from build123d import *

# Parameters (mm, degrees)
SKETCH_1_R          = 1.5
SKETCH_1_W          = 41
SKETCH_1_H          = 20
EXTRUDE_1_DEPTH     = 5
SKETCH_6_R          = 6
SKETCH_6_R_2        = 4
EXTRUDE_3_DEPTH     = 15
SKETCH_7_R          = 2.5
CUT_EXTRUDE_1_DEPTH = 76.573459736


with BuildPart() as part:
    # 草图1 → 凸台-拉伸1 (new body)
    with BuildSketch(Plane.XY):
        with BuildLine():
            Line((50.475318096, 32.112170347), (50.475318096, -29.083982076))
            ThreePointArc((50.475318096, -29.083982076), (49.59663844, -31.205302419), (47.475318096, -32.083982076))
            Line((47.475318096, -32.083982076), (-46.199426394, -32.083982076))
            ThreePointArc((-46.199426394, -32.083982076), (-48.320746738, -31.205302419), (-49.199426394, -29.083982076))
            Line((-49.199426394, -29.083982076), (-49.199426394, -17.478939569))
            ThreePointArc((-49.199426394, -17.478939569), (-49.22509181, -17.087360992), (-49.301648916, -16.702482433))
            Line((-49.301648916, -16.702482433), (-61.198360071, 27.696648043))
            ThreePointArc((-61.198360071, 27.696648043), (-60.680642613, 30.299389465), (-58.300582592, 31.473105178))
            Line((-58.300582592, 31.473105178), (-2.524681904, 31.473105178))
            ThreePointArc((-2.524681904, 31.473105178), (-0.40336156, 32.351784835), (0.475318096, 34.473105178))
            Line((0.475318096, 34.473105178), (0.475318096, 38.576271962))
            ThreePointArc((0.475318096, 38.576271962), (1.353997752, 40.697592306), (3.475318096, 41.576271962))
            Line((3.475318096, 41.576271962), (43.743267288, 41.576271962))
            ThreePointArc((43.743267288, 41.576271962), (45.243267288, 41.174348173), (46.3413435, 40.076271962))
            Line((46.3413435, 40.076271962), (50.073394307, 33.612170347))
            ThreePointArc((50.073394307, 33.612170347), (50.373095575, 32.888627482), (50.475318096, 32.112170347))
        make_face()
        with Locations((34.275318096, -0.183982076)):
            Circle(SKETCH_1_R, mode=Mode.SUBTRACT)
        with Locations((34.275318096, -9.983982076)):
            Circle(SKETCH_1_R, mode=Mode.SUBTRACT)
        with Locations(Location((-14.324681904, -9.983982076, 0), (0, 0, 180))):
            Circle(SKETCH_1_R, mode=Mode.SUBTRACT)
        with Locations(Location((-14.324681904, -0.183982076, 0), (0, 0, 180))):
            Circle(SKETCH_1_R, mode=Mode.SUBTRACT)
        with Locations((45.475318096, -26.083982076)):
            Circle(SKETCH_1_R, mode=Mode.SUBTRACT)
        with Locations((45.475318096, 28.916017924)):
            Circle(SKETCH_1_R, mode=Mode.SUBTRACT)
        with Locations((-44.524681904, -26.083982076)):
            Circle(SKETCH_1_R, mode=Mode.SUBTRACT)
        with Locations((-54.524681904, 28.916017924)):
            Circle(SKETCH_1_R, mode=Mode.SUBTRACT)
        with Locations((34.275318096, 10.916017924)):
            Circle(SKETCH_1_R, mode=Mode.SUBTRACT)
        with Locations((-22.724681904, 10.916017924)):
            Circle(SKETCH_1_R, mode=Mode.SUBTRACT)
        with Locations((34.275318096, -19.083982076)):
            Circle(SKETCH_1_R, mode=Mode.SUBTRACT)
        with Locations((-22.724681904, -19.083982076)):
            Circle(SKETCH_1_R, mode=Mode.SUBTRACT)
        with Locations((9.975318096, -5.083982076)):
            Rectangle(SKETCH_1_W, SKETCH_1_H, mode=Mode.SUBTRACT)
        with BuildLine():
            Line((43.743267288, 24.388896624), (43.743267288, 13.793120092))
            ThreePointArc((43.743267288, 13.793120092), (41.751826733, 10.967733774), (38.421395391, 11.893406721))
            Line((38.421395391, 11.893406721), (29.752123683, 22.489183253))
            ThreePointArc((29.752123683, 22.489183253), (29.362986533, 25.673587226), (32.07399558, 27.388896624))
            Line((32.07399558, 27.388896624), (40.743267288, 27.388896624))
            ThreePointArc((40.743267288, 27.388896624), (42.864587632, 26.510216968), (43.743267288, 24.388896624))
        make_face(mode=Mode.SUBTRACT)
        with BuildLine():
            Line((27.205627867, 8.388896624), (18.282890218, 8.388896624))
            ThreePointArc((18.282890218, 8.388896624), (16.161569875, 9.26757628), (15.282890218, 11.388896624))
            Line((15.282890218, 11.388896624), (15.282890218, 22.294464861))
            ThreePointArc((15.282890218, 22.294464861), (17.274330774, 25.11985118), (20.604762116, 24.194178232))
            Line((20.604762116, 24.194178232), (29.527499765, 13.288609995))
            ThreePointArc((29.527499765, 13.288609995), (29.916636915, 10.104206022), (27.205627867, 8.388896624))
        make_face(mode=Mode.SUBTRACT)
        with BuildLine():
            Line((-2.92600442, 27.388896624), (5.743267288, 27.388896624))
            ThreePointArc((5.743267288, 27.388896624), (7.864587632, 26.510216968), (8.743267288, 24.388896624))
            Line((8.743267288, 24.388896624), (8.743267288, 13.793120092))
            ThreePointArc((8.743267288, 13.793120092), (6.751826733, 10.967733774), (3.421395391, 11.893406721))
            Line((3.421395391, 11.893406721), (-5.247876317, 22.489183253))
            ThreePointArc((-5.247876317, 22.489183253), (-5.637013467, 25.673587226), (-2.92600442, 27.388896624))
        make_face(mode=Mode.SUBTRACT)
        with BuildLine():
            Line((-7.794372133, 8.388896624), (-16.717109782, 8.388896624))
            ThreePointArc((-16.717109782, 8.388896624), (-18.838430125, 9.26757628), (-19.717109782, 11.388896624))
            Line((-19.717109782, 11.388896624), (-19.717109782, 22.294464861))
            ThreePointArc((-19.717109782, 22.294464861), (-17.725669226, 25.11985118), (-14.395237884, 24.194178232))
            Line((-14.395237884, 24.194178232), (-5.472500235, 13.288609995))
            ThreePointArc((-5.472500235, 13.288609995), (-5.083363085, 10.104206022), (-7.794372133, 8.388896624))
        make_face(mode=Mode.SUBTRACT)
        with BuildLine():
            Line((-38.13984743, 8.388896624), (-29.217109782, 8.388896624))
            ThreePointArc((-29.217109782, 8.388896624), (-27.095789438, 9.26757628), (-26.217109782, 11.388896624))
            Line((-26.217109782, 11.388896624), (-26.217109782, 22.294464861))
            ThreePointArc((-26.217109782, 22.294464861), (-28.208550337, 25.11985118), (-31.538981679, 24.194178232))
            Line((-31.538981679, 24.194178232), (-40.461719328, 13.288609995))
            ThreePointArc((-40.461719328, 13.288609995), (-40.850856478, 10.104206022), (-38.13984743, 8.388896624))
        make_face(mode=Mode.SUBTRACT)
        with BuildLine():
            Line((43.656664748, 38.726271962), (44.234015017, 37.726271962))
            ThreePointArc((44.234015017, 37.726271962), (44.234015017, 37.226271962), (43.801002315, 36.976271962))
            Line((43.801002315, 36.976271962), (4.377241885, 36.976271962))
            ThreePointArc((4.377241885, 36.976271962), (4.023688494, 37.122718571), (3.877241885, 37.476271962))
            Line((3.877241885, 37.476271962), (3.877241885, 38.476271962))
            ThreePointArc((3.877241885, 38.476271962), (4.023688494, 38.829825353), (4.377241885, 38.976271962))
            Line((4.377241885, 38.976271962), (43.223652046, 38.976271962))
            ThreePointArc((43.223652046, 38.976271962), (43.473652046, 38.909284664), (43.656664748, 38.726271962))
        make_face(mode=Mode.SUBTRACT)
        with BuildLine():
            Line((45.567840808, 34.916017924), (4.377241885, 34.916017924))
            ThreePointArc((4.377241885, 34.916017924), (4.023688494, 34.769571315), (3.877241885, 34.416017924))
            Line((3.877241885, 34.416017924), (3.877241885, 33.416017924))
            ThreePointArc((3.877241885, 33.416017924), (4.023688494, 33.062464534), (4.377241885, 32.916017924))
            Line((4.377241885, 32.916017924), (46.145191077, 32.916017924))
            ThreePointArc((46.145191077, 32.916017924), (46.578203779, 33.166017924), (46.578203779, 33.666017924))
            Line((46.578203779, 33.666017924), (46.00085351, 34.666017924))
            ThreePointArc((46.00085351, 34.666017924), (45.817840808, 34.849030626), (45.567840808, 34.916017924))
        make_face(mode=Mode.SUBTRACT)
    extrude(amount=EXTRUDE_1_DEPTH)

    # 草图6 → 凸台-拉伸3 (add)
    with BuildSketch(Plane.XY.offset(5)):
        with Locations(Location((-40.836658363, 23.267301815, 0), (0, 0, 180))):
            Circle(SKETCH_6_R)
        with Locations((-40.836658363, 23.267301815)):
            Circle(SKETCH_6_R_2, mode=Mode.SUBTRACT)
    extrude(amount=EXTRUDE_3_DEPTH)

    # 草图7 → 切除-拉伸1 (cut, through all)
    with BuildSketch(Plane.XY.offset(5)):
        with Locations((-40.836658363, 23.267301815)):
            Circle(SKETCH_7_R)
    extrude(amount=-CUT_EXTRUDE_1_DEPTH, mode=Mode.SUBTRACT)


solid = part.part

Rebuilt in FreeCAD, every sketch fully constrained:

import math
import FreeCAD as App
import Part
import Sketcher

V = App.Vector
Q = App.Units.Quantity


def add_polygon(sketch, points):
    """Adds a closed chain of lines whose ends are joined by coincident constraints."""
    first, n = sketch.GeometryCount, len(points)
    for a, b in zip(points, points[1:] + points[:1]):
        sketch.addGeometry(Part.LineSegment(App.Vector(*a, 0), App.Vector(*b, 0)), False)
    for i in range(n):
        sketch.addConstraint(Sketcher.Constraint("Coincident", first + i, 2, first + (i + 1) % n, 1))

doc = App.newDocument("Part")
body = doc.addObject("PartDesign::Body", "Body")

# Sketch on XY plane
sketch1 = body.newObject("Sketcher::SketchObject", "Sketch")
sketch1.AttachmentSupport = (doc.getObject("XY_Plane"), [""])
sketch1.MapMode = "FlatFace"
sketch1.addGeometry(Part.LineSegment(V(50.48, -29.08, 0), V(50.48, 32.11, 0)), False)  # 0
sketch1.addGeometry(Part.ArcOfCircle(Part.Circle(V(47.48, 32.11, 0), V(0, 0, 1), 3), math.radians(0), math.radians(30)), False)  # 1
sketch1.addGeometry(Part.LineSegment(V(50.07, 33.61, 0), V(46.34, 40.08, 0)), False)  # 2
sketch1.addGeometry(Part.ArcOfCircle(Part.Circle(V(43.74, 38.58, 0), V(0, 0, 1), 3), math.radians(30), math.radians(90)), False)  # 3
sketch1.addGeometry(Part.LineSegment(V(43.74, 41.58, 0), V(3.48, 41.58, 0)), False)  # 4
sketch1.addGeometry(Part.ArcOfCircle(Part.Circle(V(3.48, 38.58, 0), V(0, 0, 1), 3), math.radians(90), math.radians(180)), False)  # 5
sketch1.addGeometry(Part.LineSegment(V(0.48, 38.58, 0), V(0.48, 34.47, 0)), False)  # 6
sketch1.addGeometry(Part.ArcOfCircle(Part.Circle(V(-2.52, 34.47, 0), V(0, 0, 1), 3), math.radians(-90), math.radians(0)), False)  # 7
sketch1.addGeometry(Part.LineSegment(V(-2.52, 31.47, 0), V(-58.3, 31.47, 0)), False)  # 8
sketch1.addGeometry(Part.ArcOfCircle(Part.Circle(V(-58.3, 28.47, 0), V(0, 0, 1), 3), math.radians(90), math.radians(195)), False)  # 9
sketch1.addGeometry(Part.LineSegment(V(-61.2, 27.7, 0), V(-49.3, -16.7, 0)), False)  # 10
sketch1.addGeometry(Part.ArcOfCircle(Part.Circle(V(-52.2, -17.48, 0), V(0, 0, 1), 3), math.radians(0), math.radians(15)), False)  # 11
sketch1.addGeometry(Part.LineSegment(V(-49.2, -17.48, 0), V(-49.2, -29.08, 0)), False)  # 12
sketch1.addGeometry(Part.ArcOfCircle(Part.Circle(V(-46.2, -29.08, 0), V(0, 0, 1), 3), math.radians(180), math.radians(270)), False)  # 13
sketch1.addGeometry(Part.LineSegment(V(-46.2, -32.08, 0), V(47.48, -32.08, 0)), False)  # 14
sketch1.addGeometry(Part.ArcOfCircle(Part.Circle(V(47.48, -29.08, 0), V(0, 0, 1), 3), math.radians(-90), math.radians(0)), False)  # 15
sketch1.addGeometry(Part.Circle(V(45.48, -26.08, 0), V(0, 0, 1), 1.5), False)  # 16
sketch1.addGeometry(Part.Circle(V(34.28, -19.08, 0), V(0, 0, 1), 1.5), False)  # 17
sketch1.addGeometry(Part.Circle(V(34.28, -9.98, 0), V(0, 0, 1), 1.5), False)  # 18
sketch1.addGeometry(Part.Circle(V(34.28, -0.18, 0), V(0, 0, 1), 1.5), False)  # 19
add_polygon(sketch1, [(-10.52, -15.08), (-10.52, 4.92), (30.48, 4.92), (30.48, -15.08)])  # lines 20-23
sketch1.addGeometry(Part.Circle(V(-22.72, -19.08, 0), V(0, 0, 1), 1.5), False)  # 24
sketch1.addGeometry(Part.Circle(V(-44.52, -26.08, 0), V(0, 0, 1), 1.5), False)  # 25
sketch1.addGeometry(Part.Circle(V(-14.32, -9.98, 0), V(0, 0, 1), 1.5), False)  # 26
sketch1.addGeometry(Part.Circle(V(-14.32, -0.18, 0), V(0, 0, 1), 1.5), False)  # 27
sketch1.addGeometry(Part.Circle(V(34.28, 10.92, 0), V(0, 0, 1), 1.5), False)  # 28
sketch1.addGeometry(Part.LineSegment(V(43.74, 24.39, 0), V(43.74, 13.79, 0)), False)  # 29
sketch1.addGeometry(Part.ArcOfCircle(Part.Circle(V(40.74, 13.79, 0), V(0, 0, 1), 3), math.radians(-141), math.radians(0)), False)  # 30
sketch1.addGeometry(Part.LineSegment(V(38.42, 11.89, 0), V(29.75, 22.49, 0)), False)  # 31
sketch1.addGeometry(Part.ArcOfCircle(Part.Circle(V(32.07, 24.39, 0), V(0, 0, 1), 3), math.radians(90), math.radians(219)), False)  # 32
sketch1.addGeometry(Part.LineSegment(V(32.07, 27.39, 0), V(40.74, 27.39, 0)), False)  # 33
sketch1.addGeometry(Part.ArcOfCircle(Part.Circle(V(40.74, 24.39, 0), V(0, 0, 1), 3), math.radians(0), math.radians(90)), False)  # 34
sketch1.addGeometry(Part.LineSegment(V(27.21, 8.39, 0), V(18.28, 8.39, 0)), False)  # 35
sketch1.addGeometry(Part.ArcOfCircle(Part.Circle(V(18.28, 11.39, 0), V(0, 0, 1), 3), math.radians(180), math.radians(270)), False)  # 36
sketch1.addGeometry(Part.LineSegment(V(15.28, 11.39, 0), V(15.28, 22.29, 0)), False)  # 37
sketch1.addGeometry(Part.ArcOfCircle(Part.Circle(V(18.28, 22.29, 0), V(0, 0, 1), 3), math.radians(39), math.radians(180)), False)  # 38
sketch1.addGeometry(Part.LineSegment(V(20.6, 24.19, 0), V(29.53, 13.29, 0)), False)  # 39
sketch1.addGeometry(Part.ArcOfCircle(Part.Circle(V(27.21, 11.39, 0), V(0, 0, 1), 3), math.radians(-90), math.radians(39)), False)  # 40
sketch1.addGeometry(Part.LineSegment(V(-2.93, 27.39, 0), V(5.74, 27.39, 0)), False)  # 41
sketch1.addGeometry(Part.ArcOfCircle(Part.Circle(V(5.74, 24.39, 0), V(0, 0, 1), 3), math.radians(0), math.radians(90)), False)  # 42
sketch1.addGeometry(Part.LineSegment(V(8.74, 24.39, 0), V(8.74, 13.79, 0)), False)  # 43
sketch1.addGeometry(Part.ArcOfCircle(Part.Circle(V(5.74, 13.79, 0), V(0, 0, 1), 3), math.radians(-141), math.radians(0)), False)  # 44
sketch1.addGeometry(Part.LineSegment(V(3.42, 11.89, 0), V(-5.25, 22.49, 0)), False)  # 45
sketch1.addGeometry(Part.ArcOfCircle(Part.Circle(V(-2.93, 24.39, 0), V(0, 0, 1), 3), math.radians(90), math.radians(219)), False)  # 46
sketch1.addGeometry(Part.Circle(V(45.48, 28.92, 0), V(0, 0, 1), 1.5), False)  # 47
sketch1.addGeometry(Part.ArcOfCircle(Part.Circle(V(45.57, 34.42, 0), V(0, 0, 1), 0.5), math.radians(30), math.radians(90)), False)  # 48
sketch1.addGeometry(Part.LineSegment(V(46, 34.67, 0), V(46.58, 33.67, 0)), False)  # 49
sketch1.addGeometry(Part.ArcOfCircle(Part.Circle(V(46.15, 33.42, 0), V(0, 0, 1), 0.5), math.radians(-90), math.radians(30)), False)  # 50
sketch1.addGeometry(Part.LineSegment(V(46.15, 32.92, 0), V(4.38, 32.92, 0)), False)  # 51
sketch1.addGeometry(Part.ArcOfCircle(Part.Circle(V(4.38, 33.42, 0), V(0, 0, 1), 0.5), math.radians(180), math.radians(270)), False)  # 52
sketch1.addGeometry(Part.LineSegment(V(3.88, 33.42, 0), V(3.88, 34.42, 0)), False)  # 53
sketch1.addGeometry(Part.ArcOfCircle(Part.Circle(V(4.38, 34.42, 0), V(0, 0, 1), 0.5), math.radians(90), math.radians(180)), False)  # 54
sketch1.addGeometry(Part.LineSegment(V(4.38, 34.92, 0), V(45.57, 34.92, 0)), False)  # 55
sketch1.addGeometry(Part.LineSegment(V(43.66, 38.73, 0), V(44.23, 37.73, 0)), False)  # 56
sketch1.addGeometry(Part.ArcOfCircle(Part.Circle(V(43.8, 37.48, 0), V(0, 0, 1), 0.5), math.radians(-90), math.radians(30)), False)  # 57
sketch1.addGeometry(Part.LineSegment(V(43.8, 36.98, 0), V(4.38, 36.98, 0)), False)  # 58
sketch1.addGeometry(Part.ArcOfCircle(Part.Circle(V(4.38, 37.48, 0), V(0, 0, 1), 0.5), math.radians(180), math.radians(270)), False)  # 59
sketch1.addGeometry(Part.LineSegment(V(3.88, 37.48, 0), V(3.88, 38.48, 0)), False)  # 60
sketch1.addGeometry(Part.ArcOfCircle(Part.Circle(V(4.38, 38.48, 0), V(0, 0, 1), 0.5), math.radians(90), math.radians(180)), False)  # 61
sketch1.addGeometry(Part.LineSegment(V(4.38, 38.98, 0), V(43.22, 38.98, 0)), False)  # 62
sketch1.addGeometry(Part.ArcOfCircle(Part.Circle(V(43.22, 38.48, 0), V(0, 0, 1), 0.5), math.radians(30), math.radians(90)), False)  # 63
sketch1.addGeometry(Part.Circle(V(-22.72, 10.92, 0), V(0, 0, 1), 1.5), False)  # 64
sketch1.addGeometry(Part.LineSegment(V(-7.79, 8.39, 0), V(-16.72, 8.39, 0)), False)  # 65
sketch1.addGeometry(Part.ArcOfCircle(Part.Circle(V(-16.72, 11.39, 0), V(0, 0, 1), 3), math.radians(180), math.radians(270)), False)  # 66
sketch1.addGeometry(Part.LineSegment(V(-19.72, 11.39, 0), V(-19.72, 22.29, 0)), False)  # 67
sketch1.addGeometry(Part.ArcOfCircle(Part.Circle(V(-16.72, 22.29, 0), V(0, 0, 1), 3), math.radians(39), math.radians(180)), False)  # 68
sketch1.addGeometry(Part.LineSegment(V(-14.4, 24.19, 0), V(-5.47, 13.29, 0)), False)  # 69
sketch1.addGeometry(Part.ArcOfCircle(Part.Circle(V(-7.79, 11.39, 0), V(0, 0, 1), 3), math.radians(-90), math.radians(39)), False)  # 70
sketch1.addGeometry(Part.ArcOfCircle(Part.Circle(V(-38.14, 11.39, 0), V(0, 0, 1), 3), math.radians(141), math.radians(270)), False)  # 71
sketch1.addGeometry(Part.LineSegment(V(-40.46, 13.29, 0), V(-31.54, 24.19, 0)), False)  # 72
sketch1.addGeometry(Part.ArcOfCircle(Part.Circle(V(-29.22, 22.29, 0), V(0, 0, 1), 3), math.radians(0), math.radians(141)), False)  # 73
sketch1.addGeometry(Part.LineSegment(V(-26.22, 22.29, 0), V(-26.22, 11.39, 0)), False)  # 74
sketch1.addGeometry(Part.ArcOfCircle(Part.Circle(V(-29.22, 11.39, 0), V(0, 0, 1), 3), math.radians(-90), math.radians(0)), False)  # 75
sketch1.addGeometry(Part.LineSegment(V(-29.22, 8.39, 0), V(-38.14, 8.39, 0)), False)  # 76
sketch1.addGeometry(Part.Circle(V(-54.52, 28.92, 0), V(0, 0, 1), 1.5), False)  # 77
sketch1.addConstraint([
    Sketcher.Constraint("Tangent", 0, 2, 1, 1),
    Sketcher.Constraint("Tangent", 1, 2, 2, 1),
    Sketcher.Constraint("Tangent", 2, 2, 3, 1),
    Sketcher.Constraint("Tangent", 3, 2, 4, 1),
    Sketcher.Constraint("Tangent", 4, 2, 5, 1),
    Sketcher.Constraint("Tangent", 5, 2, 6, 1),
    Sketcher.Constraint("Tangent", 6, 2, 7, 2),
    Sketcher.Constraint("Tangent", 7, 1, 8, 1),
    Sketcher.Constraint("Tangent", 8, 2, 9, 1),
    Sketcher.Constraint("Tangent", 9, 2, 10, 1),
    Sketcher.Constraint("Tangent", 10, 2, 11, 2),
    Sketcher.Constraint("Tangent", 11, 1, 12, 1),
    Sketcher.Constraint("Tangent", 12, 2, 13, 1),
    Sketcher.Constraint("Tangent", 13, 2, 14, 1),
    Sketcher.Constraint("Tangent", 14, 2, 15, 1),
    Sketcher.Constraint("Tangent", 15, 2, 0, 1),
    Sketcher.Constraint("Tangent", 29, 2, 30, 2),
    Sketcher.Constraint("Tangent", 30, 1, 31, 1),
    Sketcher.Constraint("Tangent", 31, 2, 32, 2),
    Sketcher.Constraint("Tangent", 32, 1, 33, 1),
    Sketcher.Constraint("Tangent", 33, 2, 34, 2),
    Sketcher.Constraint("Tangent", 34, 1, 29, 1),
    Sketcher.Constraint("Tangent", 35, 2, 36, 2),
    Sketcher.Constraint("Tangent", 36, 1, 37, 1),
    Sketcher.Constraint("Tangent", 37, 2, 38, 2),
    Sketcher.Constraint("Tangent", 38, 1, 39, 1),
    Sketcher.Constraint("Tangent", 39, 2, 40, 2),
    Sketcher.Constraint("Tangent", 40, 1, 35, 1),
    Sketcher.Constraint("Tangent", 41, 2, 42, 2),
    Sketcher.Constraint("Tangent", 42, 1, 43, 1),
    Sketcher.Constraint("Tangent", 43, 2, 44, 2),
    Sketcher.Constraint("Tangent", 44, 1, 45, 1),
    Sketcher.Constraint("Tangent", 45, 2, 46, 2),
    Sketcher.Constraint("Tangent", 46, 1, 41, 1),
    Sketcher.Constraint("Tangent", 48, 1, 49, 1),
    Sketcher.Constraint("Tangent", 49, 2, 50, 2),
    Sketcher.Constraint("Tangent", 50, 1, 51, 1),
    Sketcher.Constraint("Tangent", 51, 2, 52, 2),
    Sketcher.Constraint("Tangent", 52, 1, 53, 1),
    Sketcher.Constraint("Tangent", 53, 2, 54, 2),
    Sketcher.Constraint("Tangent", 54, 1, 55, 1),
    Sketcher.Constraint("Tangent", 55, 2, 48, 2),
    Sketcher.Constraint("Tangent", 56, 2, 57, 2),
    Sketcher.Constraint("Tangent", 57, 1, 58, 1),
    Sketcher.Constraint("Tangent", 58, 2, 59, 2),
    Sketcher.Constraint("Tangent", 59, 1, 60, 1),
    Sketcher.Constraint("Tangent", 60, 2, 61, 2),
    Sketcher.Constraint("Tangent", 61, 1, 62, 1),
    Sketcher.Constraint("Tangent", 62, 2, 63, 2),
    Sketcher.Constraint("Tangent", 63, 1, 56, 1),
    Sketcher.Constraint("Tangent", 65, 2, 66, 2),
    Sketcher.Constraint("Tangent", 66, 1, 67, 1),
    Sketcher.Constraint("Tangent", 67, 2, 68, 2),
    Sketcher.Constraint("Tangent", 68, 1, 69, 1),
    Sketcher.Constraint("Tangent", 69, 2, 70, 2),
    Sketcher.Constraint("Tangent", 70, 1, 65, 1),
    Sketcher.Constraint("Tangent", 71, 1, 72, 1),
    Sketcher.Constraint("Tangent", 72, 2, 73, 2),
    Sketcher.Constraint("Tangent", 73, 1, 74, 1),
    Sketcher.Constraint("Tangent", 74, 2, 75, 2),
    Sketcher.Constraint("Tangent", 75, 1, 76, 1),
    Sketcher.Constraint("Tangent", 76, 2, 71, 2),
    Sketcher.Constraint("Vertical", 0),
    Sketcher.Constraint("Horizontal", 4),
    Sketcher.Constraint("Vertical", 6),
    Sketcher.Constraint("Horizontal", 8),
    Sketcher.Constraint("Vertical", 12),
    Sketcher.Constraint("Horizontal", 14),
    Sketcher.Constraint("Vertical", 20),
    Sketcher.Constraint("Horizontal", 21),
    Sketcher.Constraint("Vertical", 22),
    Sketcher.Constraint("Horizontal", 23),
    Sketcher.Constraint("Vertical", 29),
    Sketcher.Constraint("Horizontal", 33),
    Sketcher.Constraint("Horizontal", 35),
    Sketcher.Constraint("Vertical", 37),
    Sketcher.Constraint("Horizontal", 41),
    Sketcher.Constraint("Vertical", 43),
    Sketcher.Constraint("Horizontal", 51),
    Sketcher.Constraint("Vertical", 53),
    Sketcher.Constraint("Horizontal", 55),
    Sketcher.Constraint("Horizontal", 58),
    Sketcher.Constraint("Vertical", 60),
    Sketcher.Constraint("Horizontal", 62),
    Sketcher.Constraint("Horizontal", 65),
    Sketcher.Constraint("Vertical", 67),
    Sketcher.Constraint("Vertical", 74),
    Sketcher.Constraint("Horizontal", 76),
    Sketcher.Constraint("Equal", 1, 3),
    Sketcher.Constraint("Equal", 3, 5),
    Sketcher.Constraint("Equal", 5, 7),
    Sketcher.Constraint("Equal", 7, 9),
    Sketcher.Constraint("Equal", 9, 11),
    Sketcher.Constraint("Equal", 11, 13),
    Sketcher.Constraint("Equal", 13, 15),
    Sketcher.Constraint("Equal", 16, 17),
    Sketcher.Constraint("Equal", 17, 18),
    Sketcher.Constraint("Equal", 18, 19),
    Sketcher.Constraint("Equal", 19, 24),
    Sketcher.Constraint("Equal", 24, 25),
    Sketcher.Constraint("Equal", 25, 26),
    Sketcher.Constraint("Equal", 26, 27),
    Sketcher.Constraint("Equal", 27, 28),
    Sketcher.Constraint("Equal", 15, 30),
    Sketcher.Constraint("Equal", 30, 32),
    Sketcher.Constraint("Equal", 32, 34),
    Sketcher.Constraint("Equal", 34, 36),
    Sketcher.Constraint("Equal", 36, 38),
    Sketcher.Constraint("Equal", 38, 40),
    Sketcher.Constraint("Equal", 40, 42),
    Sketcher.Constraint("Equal", 42, 44),
    Sketcher.Constraint("Equal", 44, 46),
    Sketcher.Constraint("Equal", 28, 47),
    Sketcher.Constraint("Equal", 48, 50),
    Sketcher.Constraint("Equal", 50, 52),
    Sketcher.Constraint("Equal", 52, 54),
    Sketcher.Constraint("Equal", 54, 57),
    Sketcher.Constraint("Equal", 57, 59),
    Sketcher.Constraint("Equal", 59, 61),
    Sketcher.Constraint("Equal", 61, 63),
    Sketcher.Constraint("Equal", 47, 64),
    Sketcher.Constraint("Equal", 46, 66),
    Sketcher.Constraint("Equal", 66, 68),
    Sketcher.Constraint("Equal", 68, 70),
    Sketcher.Constraint("Equal", 70, 71),
    Sketcher.Constraint("Equal", 71, 73),
    Sketcher.Constraint("Equal", 73, 75),
    Sketcher.Constraint("Equal", 64, 77),
    Sketcher.Constraint("Parallel", 31, 39),
    Sketcher.Constraint("Parallel", 39, 45),
    Sketcher.Constraint("Parallel", 2, 49),
    Sketcher.Constraint("Parallel", 49, 56),
    Sketcher.Constraint("Parallel", 45, 69),
    Sketcher.Constraint("Horizontal", 17, 3, 24, 3),
    Sketcher.Constraint("Horizontal", 16, 3, 25, 3),
    Sketcher.Constraint("Horizontal", 18, 3, 26, 3),
    Sketcher.Constraint("Horizontal", 19, 3, 27, 3),
    Sketcher.Constraint("Horizontal", 34, 3, 42, 3),
    Sketcher.Constraint("Horizontal", 30, 3, 44, 3),
    Sketcher.Constraint("Horizontal", 28, 3, 64, 3),
    Sketcher.Constraint("Horizontal", 40, 3, 66, 3),
    Sketcher.Constraint("Horizontal", 38, 3, 68, 3),
    Sketcher.Constraint("Horizontal", 70, 3, 71, 3),
    Sketcher.Constraint("Horizontal", 68, 3, 73, 3),
    Sketcher.Constraint("Horizontal", 47, 3, 77, 3),
    Sketcher.Constraint("Horizontal", 69, 2, 71, 1),
    Sketcher.Constraint("Vertical", 17, 3, 18, 3),
    Sketcher.Constraint("Vertical", 18, 3, 19, 3),
    Sketcher.Constraint("Vertical", 26, 3, 27, 3),
    Sketcher.Constraint("Vertical", 19, 3, 28, 3),
    Sketcher.Constraint("Vertical", 16, 3, 47, 3),
    Sketcher.Constraint("Vertical", 54, 3, 59, 3),
    Sketcher.Constraint("Vertical", 24, 3, 64, 3),
    Sketcher.Constraint("Vertical", 3, 2, 29, 2),
    Sketcher.Constraint("Equal", 53, 60),
    Sketcher.Constraint("Diameter", 16, 3.0),
    Sketcher.Constraint("Radius", 1, 3.0),
    Sketcher.Constraint("Radius", 48, 0.5),
    Sketcher.Constraint("DistanceX", 21, 1, 21, 2, 41.0),
    Sketcher.Constraint("DistanceY", 20, 1, 20, 2, 20.0),
    Sketcher.Constraint("DistanceY", 53, 1, 53, 2, 1.0),
    Sketcher.Constraint("Angle", 2, Q("120 deg")),
    Sketcher.Constraint("Angle", 10, Q("-75 deg")),
    Sketcher.Constraint("DistanceX", 8, 2, 8, 1, 55.775901),
    Sketcher.Constraint("DistanceX", 55, 1, 55, 2, 41.190599),
    Sketcher.Constraint("Distance", 2, 7.464102),
    Sketcher.Constraint("DistanceX", 4, 2, 4, 1, 40.267949),
    Sketcher.Constraint("DistanceX", 33, 1, 33, 2, 8.669272),
    Sketcher.Constraint("DistanceX", 58, 2, 58, 1, 39.42376),
    Sketcher.Constraint("DistanceY", 37, 1, 37, 2, 10.905568),
    Sketcher.Constraint("DistanceX", -1, 1, 39, 2, 29.5275),
    Sketcher.Constraint("DistanceX", 69, 2, -1, 1, 5.4725),
    Sketcher.Constraint("Distance", 31, 13.690389),
    Sketcher.Constraint("DistanceX", 14, 1, 14, 2, 93.674744),
    Sketcher.Constraint("DistanceY", 0, 1, 0, 2, 61.196152),
    Sketcher.Constraint("DistanceY", 6, 2, 6, 1, 4.103167),
    Sketcher.Constraint("DistanceX", -1, 1, 1, 3, 47.475318),
    Sketcher.Constraint("DistanceY", -1, 1, 1, 3, 32.11217),
    Sketcher.Constraint("DistanceX", -1, 1, 16, 3, 45.475318),
    Sketcher.Constraint("DistanceX", -1, 1, 17, 3, 34.275318),
    Sketcher.Constraint("DistanceX", 24, 3, -1, 1, 22.724682),
    Sketcher.Constraint("DistanceX", 25, 3, -1, 1, 44.524682),
    Sketcher.Constraint("DistanceX", 26, 3, -1, 1, 14.324682),
    Sketcher.Constraint("DistanceY", -1, 1, 30, 3, 13.79312),
    Sketcher.Constraint("DistanceX", -1, 1, 48, 3, 45.567841),
    Sketcher.Constraint("DistanceY", -1, 1, 57, 3, 37.476272),
    Sketcher.Constraint("DistanceX", 73, 3, -1, 1, 29.21711),
    Sketcher.Constraint("DistanceX", 77, 3, -1, 1, 54.524682),
    Sketcher.Constraint("DistanceX", 20, 2, -1, 1, 10.524682),
    Sketcher.Constraint("DistanceY", -1, 1, 38, 1, 24.194178),
    Sketcher.Constraint("DistanceY", 16, 3, -1, 1, 26.083982),
    Sketcher.Constraint("DistanceY", 17, 3, -1, 1, 19.083982),
    Sketcher.Constraint("DistanceY", 18, 3, -1, 1, 9.983982),
    Sketcher.Constraint("DistanceY", 19, 3, -1, 1, 0.183982),
    Sketcher.Constraint("DistanceY", -1, 1, 28, 3, 10.916018),
    Sketcher.Constraint("DistanceX", -1, 1, 42, 3, 5.743267),
    Sketcher.Constraint("DistanceY", -1, 1, 47, 3, 28.916018),
    Sketcher.Constraint("DistanceY", -1, 1, 48, 3, 34.416018),
    Sketcher.Constraint("DistanceY", -1, 1, 20, 2, 4.916018),
])
pad1 = body.newObject("PartDesign::Pad", "Pad")
pad1.Profile = sketch1
pad1.Length = 5

# Sketch on XY plane
sketch2 = body.newObject("Sketcher::SketchObject", "Sketch001")
sketch2.AttachmentSupport = (doc.getObject("XY_Plane"), [""])
sketch2.MapMode = "FlatFace"
sketch2.AttachmentOffset = App.Placement(V(0, 0, 5), App.Rotation())
sketch2.addGeometry([
    Part.Circle(V(-40.8, 23.3, 0), V(0, 0, 1), 6),
    Part.Circle(V(-40.8, 23.3, 0), V(0, 0, 1), 4),
], False)
sketch2.addConstraint([
    Sketcher.Constraint("Coincident", 1, 3, 0, 3),
    Sketcher.Constraint("Diameter", 0, 12.0),
    Sketcher.Constraint("Diameter", 1, 8.0),
    Sketcher.Constraint("DistanceY", -1, 1, 0, 3, 23.267302),
    Sketcher.Constraint("DistanceX", 0, 3, -1, 1, 40.836658),
])
pad2 = body.newObject("PartDesign::Pad", "Pad001")
pad2.Profile = sketch2
pad2.Length = 15

# Sketch on XY plane
sketch3 = body.newObject("Sketcher::SketchObject", "Sketch002")
sketch3.AttachmentSupport = (doc.getObject("XY_Plane"), [""])
sketch3.MapMode = "FlatFace"
sketch3.AttachmentOffset = App.Placement(V(0, 0, 5), App.Rotation())
sketch3.addGeometry(Part.Circle(V(-40.8, 23.3, 0), V(0, 0, 1), 2.5), False)
sketch3.addConstraint([
    Sketcher.Constraint("Diameter", 0, 5.0),
    Sketcher.Constraint("DistanceY", -1, 1, 0, 3, 23.267302),
    Sketcher.Constraint("DistanceX", 0, 3, -1, 1, 40.836658),
])
pocket1 = body.newObject("PartDesign::Pocket", "Pocket")
pocket1.Profile = sketch3
pocket1.Type = "ThroughAll"

doc.recompute()
